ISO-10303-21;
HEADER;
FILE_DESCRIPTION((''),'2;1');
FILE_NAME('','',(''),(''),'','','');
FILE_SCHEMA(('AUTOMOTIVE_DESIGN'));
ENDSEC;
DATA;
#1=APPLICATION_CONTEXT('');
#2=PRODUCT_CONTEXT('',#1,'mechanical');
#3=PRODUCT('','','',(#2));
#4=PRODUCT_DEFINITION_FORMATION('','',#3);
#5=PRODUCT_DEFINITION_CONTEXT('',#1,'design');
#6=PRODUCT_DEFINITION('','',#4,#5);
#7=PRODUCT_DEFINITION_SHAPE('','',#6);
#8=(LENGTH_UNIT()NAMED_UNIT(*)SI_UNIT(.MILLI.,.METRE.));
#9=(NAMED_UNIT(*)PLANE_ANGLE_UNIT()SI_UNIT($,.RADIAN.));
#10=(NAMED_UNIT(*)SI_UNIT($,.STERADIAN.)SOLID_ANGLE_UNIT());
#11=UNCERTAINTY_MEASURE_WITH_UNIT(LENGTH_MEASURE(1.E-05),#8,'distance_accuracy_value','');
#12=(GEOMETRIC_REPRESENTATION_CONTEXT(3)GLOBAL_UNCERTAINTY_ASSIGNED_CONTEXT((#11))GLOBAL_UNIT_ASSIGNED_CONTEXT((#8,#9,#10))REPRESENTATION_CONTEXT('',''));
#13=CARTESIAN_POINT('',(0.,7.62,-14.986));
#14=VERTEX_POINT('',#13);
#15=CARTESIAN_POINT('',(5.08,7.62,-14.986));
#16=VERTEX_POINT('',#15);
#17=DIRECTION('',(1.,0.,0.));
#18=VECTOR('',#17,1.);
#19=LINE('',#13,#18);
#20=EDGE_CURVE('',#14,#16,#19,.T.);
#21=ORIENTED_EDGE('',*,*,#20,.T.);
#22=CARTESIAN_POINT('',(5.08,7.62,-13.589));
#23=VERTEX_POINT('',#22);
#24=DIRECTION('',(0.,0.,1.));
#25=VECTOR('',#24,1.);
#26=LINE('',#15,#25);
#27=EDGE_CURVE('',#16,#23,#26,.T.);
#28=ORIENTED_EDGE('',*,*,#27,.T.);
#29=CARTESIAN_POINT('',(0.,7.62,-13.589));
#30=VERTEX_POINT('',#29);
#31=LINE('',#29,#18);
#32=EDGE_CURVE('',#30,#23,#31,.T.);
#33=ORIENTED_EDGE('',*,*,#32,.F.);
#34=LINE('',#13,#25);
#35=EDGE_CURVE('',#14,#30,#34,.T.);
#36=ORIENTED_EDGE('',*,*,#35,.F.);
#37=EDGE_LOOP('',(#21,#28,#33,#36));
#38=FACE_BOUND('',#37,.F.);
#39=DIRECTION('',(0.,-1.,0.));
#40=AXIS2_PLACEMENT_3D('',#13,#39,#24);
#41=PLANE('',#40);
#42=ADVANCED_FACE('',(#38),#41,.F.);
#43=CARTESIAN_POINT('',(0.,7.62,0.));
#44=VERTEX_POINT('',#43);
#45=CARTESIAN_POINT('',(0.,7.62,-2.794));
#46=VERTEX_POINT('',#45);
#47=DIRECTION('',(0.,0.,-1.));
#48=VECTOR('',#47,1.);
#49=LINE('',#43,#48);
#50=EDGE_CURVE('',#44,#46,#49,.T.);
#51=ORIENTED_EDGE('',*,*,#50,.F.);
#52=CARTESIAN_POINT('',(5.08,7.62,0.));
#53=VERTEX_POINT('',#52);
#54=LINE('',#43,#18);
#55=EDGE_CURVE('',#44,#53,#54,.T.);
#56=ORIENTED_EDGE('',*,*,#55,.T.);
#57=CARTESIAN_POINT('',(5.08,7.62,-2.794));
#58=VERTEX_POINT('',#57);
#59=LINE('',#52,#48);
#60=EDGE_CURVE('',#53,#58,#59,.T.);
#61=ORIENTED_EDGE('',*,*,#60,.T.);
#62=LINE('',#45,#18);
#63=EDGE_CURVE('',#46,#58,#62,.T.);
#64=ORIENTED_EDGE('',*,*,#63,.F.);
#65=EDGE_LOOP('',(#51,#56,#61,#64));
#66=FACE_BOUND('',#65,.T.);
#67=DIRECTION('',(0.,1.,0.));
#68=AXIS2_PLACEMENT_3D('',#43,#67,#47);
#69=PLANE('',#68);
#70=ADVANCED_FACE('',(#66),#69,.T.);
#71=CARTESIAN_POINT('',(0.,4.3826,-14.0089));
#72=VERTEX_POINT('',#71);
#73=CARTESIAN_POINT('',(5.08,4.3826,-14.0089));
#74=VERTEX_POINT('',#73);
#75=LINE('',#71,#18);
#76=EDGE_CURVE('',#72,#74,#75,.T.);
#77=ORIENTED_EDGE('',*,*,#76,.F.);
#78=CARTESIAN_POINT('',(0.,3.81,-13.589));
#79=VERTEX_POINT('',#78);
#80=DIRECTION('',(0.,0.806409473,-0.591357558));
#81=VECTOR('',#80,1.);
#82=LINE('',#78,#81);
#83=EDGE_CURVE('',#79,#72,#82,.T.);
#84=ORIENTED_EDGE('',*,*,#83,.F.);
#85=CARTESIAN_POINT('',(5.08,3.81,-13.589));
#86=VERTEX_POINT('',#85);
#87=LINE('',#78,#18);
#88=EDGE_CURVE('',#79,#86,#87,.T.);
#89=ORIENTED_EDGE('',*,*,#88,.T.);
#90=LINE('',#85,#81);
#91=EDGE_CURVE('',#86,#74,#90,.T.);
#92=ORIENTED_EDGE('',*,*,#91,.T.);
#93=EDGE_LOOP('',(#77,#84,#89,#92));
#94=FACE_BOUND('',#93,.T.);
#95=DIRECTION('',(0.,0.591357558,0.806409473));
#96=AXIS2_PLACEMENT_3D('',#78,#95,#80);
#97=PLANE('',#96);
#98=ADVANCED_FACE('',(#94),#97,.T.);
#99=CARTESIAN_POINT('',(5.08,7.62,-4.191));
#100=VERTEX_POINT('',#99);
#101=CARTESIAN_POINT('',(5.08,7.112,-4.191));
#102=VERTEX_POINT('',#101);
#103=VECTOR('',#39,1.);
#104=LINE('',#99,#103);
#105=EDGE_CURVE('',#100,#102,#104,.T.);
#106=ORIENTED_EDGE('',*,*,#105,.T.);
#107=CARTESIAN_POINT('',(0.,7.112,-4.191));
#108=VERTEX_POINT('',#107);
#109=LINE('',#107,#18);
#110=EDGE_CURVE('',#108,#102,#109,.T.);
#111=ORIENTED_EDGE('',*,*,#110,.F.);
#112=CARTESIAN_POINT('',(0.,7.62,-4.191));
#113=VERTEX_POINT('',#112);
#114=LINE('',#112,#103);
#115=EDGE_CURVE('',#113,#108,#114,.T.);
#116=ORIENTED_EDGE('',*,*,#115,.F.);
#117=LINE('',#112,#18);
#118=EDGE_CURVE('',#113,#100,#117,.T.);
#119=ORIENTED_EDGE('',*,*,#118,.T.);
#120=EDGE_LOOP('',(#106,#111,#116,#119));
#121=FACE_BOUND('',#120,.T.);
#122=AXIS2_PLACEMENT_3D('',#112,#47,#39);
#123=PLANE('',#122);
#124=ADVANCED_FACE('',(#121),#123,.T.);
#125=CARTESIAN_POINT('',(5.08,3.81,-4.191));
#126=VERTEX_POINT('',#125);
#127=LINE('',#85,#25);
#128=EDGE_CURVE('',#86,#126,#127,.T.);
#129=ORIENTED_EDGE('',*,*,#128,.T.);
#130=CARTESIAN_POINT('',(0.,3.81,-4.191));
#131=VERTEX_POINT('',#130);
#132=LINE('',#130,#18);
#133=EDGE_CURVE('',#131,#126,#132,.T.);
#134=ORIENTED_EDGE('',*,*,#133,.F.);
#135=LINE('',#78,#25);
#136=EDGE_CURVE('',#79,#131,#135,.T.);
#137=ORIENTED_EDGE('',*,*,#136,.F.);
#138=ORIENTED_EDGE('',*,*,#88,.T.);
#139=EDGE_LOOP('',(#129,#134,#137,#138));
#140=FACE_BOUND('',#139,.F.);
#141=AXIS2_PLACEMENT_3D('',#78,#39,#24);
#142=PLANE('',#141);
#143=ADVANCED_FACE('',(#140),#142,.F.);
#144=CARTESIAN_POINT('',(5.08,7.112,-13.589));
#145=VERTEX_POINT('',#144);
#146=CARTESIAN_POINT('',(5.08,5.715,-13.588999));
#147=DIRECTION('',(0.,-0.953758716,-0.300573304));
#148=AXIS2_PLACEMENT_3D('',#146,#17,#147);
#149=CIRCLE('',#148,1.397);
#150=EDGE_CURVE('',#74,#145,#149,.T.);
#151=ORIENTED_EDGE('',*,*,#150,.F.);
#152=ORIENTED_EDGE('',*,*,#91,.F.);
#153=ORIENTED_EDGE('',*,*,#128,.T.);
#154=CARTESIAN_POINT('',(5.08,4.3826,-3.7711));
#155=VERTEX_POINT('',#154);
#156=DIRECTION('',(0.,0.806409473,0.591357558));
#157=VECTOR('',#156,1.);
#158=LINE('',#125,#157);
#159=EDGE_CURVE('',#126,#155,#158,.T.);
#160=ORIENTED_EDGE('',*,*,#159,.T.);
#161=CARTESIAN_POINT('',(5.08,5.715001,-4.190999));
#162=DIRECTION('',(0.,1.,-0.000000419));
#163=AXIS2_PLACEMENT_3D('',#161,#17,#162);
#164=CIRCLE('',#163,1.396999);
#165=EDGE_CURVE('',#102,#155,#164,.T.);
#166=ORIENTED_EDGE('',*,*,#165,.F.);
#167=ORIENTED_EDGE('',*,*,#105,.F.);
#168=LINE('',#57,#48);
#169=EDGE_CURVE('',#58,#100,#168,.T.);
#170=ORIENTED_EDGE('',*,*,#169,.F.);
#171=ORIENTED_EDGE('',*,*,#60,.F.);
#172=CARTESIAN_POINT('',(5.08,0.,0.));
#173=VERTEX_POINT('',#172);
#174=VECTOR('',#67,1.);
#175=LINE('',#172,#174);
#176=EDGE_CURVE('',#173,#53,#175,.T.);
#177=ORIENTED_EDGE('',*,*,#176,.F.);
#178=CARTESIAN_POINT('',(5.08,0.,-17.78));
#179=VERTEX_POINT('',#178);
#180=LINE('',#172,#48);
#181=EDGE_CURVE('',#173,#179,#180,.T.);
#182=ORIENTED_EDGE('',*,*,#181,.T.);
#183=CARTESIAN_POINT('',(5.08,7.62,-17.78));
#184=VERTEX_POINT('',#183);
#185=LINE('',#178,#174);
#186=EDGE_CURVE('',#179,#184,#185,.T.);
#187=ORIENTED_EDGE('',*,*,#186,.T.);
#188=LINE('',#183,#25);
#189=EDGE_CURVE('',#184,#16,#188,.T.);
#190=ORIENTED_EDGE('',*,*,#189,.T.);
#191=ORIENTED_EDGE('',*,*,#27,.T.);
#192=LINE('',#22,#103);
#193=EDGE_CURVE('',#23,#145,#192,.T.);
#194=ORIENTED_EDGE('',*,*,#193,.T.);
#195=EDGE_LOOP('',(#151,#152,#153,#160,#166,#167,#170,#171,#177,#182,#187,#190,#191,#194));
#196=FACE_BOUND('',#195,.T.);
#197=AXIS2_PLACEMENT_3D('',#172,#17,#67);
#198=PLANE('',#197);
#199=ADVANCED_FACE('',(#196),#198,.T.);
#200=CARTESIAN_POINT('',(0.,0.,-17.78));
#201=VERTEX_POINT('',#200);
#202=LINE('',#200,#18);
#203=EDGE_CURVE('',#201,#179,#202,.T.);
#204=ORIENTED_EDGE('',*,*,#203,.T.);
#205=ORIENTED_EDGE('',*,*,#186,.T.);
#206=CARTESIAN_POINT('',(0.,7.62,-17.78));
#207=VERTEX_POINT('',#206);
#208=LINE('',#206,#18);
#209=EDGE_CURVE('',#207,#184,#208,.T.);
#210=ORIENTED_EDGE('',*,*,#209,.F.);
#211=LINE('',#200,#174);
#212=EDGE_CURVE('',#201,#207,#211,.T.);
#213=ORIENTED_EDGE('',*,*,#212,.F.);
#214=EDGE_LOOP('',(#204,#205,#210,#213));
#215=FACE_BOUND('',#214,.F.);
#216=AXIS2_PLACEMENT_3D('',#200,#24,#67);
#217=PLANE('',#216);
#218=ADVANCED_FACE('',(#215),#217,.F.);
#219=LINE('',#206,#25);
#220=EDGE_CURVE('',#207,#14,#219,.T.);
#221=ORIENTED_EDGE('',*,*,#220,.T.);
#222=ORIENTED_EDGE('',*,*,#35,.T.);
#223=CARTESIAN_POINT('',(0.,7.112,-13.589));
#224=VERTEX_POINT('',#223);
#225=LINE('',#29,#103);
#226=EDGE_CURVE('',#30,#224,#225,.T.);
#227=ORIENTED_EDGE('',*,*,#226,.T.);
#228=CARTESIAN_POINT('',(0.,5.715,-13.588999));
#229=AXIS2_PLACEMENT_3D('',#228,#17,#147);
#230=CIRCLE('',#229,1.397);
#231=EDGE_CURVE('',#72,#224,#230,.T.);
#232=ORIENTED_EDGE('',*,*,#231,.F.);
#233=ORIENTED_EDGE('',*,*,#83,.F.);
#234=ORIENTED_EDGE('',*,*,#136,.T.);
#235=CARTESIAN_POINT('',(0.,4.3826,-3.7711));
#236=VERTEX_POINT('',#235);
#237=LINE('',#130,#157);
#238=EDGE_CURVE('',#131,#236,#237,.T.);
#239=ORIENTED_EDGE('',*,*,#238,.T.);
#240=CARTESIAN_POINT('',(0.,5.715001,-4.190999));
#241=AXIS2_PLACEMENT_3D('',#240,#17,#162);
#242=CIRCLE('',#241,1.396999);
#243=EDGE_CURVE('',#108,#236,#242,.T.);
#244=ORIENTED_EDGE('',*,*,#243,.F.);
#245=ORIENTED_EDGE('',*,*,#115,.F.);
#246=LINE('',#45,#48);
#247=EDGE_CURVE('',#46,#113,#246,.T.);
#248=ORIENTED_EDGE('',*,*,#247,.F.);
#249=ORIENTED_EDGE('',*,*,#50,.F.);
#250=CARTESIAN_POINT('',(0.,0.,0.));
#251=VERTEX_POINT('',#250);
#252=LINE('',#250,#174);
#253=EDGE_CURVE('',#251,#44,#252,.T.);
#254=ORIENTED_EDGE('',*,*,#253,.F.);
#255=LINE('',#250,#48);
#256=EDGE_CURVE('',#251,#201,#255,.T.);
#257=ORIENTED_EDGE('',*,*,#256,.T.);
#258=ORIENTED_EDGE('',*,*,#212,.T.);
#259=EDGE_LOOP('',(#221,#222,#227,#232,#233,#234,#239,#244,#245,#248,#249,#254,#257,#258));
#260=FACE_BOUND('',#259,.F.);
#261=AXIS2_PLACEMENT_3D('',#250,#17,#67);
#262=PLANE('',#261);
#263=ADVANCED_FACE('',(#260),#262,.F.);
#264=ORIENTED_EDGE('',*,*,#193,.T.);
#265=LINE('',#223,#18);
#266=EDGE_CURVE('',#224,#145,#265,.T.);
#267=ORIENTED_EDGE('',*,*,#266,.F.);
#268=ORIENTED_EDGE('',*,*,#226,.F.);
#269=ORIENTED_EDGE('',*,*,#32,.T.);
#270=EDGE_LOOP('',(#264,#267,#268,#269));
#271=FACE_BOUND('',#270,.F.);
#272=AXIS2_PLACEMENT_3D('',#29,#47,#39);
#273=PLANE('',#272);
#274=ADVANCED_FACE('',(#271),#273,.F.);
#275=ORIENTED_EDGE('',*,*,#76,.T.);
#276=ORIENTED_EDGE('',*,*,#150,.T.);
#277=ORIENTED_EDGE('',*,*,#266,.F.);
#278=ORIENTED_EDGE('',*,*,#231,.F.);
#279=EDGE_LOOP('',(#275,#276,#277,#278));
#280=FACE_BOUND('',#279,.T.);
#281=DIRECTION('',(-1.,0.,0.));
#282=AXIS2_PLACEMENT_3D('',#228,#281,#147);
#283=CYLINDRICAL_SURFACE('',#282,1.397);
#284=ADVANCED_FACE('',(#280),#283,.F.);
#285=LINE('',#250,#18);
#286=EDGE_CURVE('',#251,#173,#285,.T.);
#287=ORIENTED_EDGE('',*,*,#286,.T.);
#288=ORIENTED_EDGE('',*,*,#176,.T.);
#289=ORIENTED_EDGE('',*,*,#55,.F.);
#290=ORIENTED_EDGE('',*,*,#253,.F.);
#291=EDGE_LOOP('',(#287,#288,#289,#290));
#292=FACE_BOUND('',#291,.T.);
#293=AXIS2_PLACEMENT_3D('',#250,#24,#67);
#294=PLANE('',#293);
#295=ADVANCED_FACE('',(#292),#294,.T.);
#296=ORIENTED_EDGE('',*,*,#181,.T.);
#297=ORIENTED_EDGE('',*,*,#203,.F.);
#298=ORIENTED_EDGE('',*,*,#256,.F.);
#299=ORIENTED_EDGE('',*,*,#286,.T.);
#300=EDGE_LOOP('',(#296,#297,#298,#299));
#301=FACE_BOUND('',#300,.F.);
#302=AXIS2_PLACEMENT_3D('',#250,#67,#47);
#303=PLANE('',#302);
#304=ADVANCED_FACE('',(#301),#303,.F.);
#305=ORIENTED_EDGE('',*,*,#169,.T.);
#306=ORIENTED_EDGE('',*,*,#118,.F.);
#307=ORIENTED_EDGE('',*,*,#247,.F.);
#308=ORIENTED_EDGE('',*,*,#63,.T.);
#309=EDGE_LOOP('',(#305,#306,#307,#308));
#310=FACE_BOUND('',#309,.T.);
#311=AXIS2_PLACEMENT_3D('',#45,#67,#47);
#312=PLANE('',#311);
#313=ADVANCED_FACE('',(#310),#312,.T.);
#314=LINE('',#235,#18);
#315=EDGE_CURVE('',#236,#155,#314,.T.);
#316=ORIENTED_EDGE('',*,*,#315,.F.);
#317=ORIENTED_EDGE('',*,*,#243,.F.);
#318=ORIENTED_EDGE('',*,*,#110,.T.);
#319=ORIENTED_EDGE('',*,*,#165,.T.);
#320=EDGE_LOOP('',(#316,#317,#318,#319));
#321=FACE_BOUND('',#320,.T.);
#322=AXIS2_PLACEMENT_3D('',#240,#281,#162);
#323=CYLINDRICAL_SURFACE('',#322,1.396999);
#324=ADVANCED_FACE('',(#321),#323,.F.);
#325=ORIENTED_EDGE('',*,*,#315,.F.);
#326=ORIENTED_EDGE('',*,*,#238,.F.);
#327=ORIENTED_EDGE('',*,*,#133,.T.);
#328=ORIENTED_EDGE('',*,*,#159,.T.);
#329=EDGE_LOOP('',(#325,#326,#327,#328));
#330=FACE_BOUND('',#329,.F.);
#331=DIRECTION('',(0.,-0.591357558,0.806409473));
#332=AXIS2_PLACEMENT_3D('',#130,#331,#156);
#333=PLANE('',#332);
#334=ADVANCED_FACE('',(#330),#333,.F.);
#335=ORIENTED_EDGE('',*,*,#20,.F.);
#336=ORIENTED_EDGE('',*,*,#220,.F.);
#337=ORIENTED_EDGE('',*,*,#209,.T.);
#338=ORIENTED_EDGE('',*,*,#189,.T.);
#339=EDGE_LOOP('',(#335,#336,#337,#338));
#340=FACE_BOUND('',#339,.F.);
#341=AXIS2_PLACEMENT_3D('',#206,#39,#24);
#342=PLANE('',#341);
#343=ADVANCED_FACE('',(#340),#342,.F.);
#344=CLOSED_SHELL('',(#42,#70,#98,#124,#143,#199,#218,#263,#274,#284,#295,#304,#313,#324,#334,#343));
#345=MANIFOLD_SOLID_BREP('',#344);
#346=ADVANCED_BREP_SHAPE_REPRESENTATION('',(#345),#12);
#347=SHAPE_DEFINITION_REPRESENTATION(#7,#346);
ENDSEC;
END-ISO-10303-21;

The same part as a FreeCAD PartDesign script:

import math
import FreeCAD as App
import Part
import Sketcher

V = App.Vector
Q = App.Units.Quantity

doc = App.newDocument("Part")
body = doc.addObject("PartDesign::Body", "Body")

# Sketch on YZ plane
sketch1 = body.newObject("Sketcher::SketchObject", "Sketch")
sketch1.AttachmentSupport = (doc.getObject("YZ_Plane"), [""])
sketch1.MapMode = "FlatFace"
sketch1.addGeometry([
    Part.LineSegment(V(7.62, 0, 0), V(0, 0, 0)),  # 0
    Part.LineSegment(V(0, 0, 0), V(0, -17.78, 0)),  # 1
    Part.LineSegment(V(0, -17.78, 0), V(7.62, -17.78, 0)),  # 2
    Part.LineSegment(V(7.62, -17.78, 0), V(7.62, -13.589, 0)),  # 3
    Part.LineSegment(V(7.62, -13.589, 0), V(7.112, -13.589, 0)),  # 4
    Part.ArcOfCircle(Part.Circle(V(5.715, -13.589, 0), V(0, 0, 1), 1.396999), math.radians(-162.507984), math.radians(0)),  # 5
    Part.LineSegment(V(4.3826, -14.0089, 0), V(3.81, -13.589, 0)),  # 6
    Part.LineSegment(V(3.81, -13.589, 0), V(3.81, -4.191, 0)),  # 7
    Part.LineSegment(V(3.81, -4.191, 0), V(4.3826, -3.7711, 0)),  # 8
    Part.ArcOfCircle(Part.Circle(V(5.715, -4.191, 0), V(0, 0, 1), 1.397), math.radians(0), math.radians(162.507984)),  # 9
    Part.LineSegment(V(7.112, -4.191, 0), V(7.62, -4.191, 0)),  # 10
    Part.LineSegment(V(7.62, -4.191, 0), V(7.62, 0, 0)),  # 11
], False)
sketch1.addConstraint([
    Sketcher.Constraint("Coincident", 0, 2, 1, 1),
    Sketcher.Constraint("Coincident", 1, 2, 2, 1),
    Sketcher.Constraint("Coincident", 2, 2, 3, 1),
    Sketcher.Constraint("Coincident", 3, 2, 4, 1),
    Sketcher.Constraint("Coincident", 4, 2, 5, 2),
    Sketcher.Constraint("Coincident", 5, 1, 6, 1),
    Sketcher.Constraint("Coincident", 6, 2, 7, 1),
    Sketcher.Constraint("Coincident", 7, 2, 8, 1),
    Sketcher.Constraint("Coincident", 8, 2, 9, 2),
    Sketcher.Constraint("Coincident", 9, 1, 10, 1),
    Sketcher.Constraint("Coincident", 10, 2, 11, 1),
    Sketcher.Constraint("Coincident", 11, 2, 0, 1),
    Sketcher.Constraint("Horizontal", 0),
    Sketcher.Constraint("Vertical", 1),
    Sketcher.Constraint("Horizontal", 2),
    Sketcher.Constraint("Vertical", 3),
    Sketcher.Constraint("Horizontal", 4),
    Sketcher.Constraint("Vertical", 7),
    Sketcher.Constraint("Horizontal", 10),
    Sketcher.Constraint("Vertical", 11),
    Sketcher.Constraint("Coincident", 0, 2, -1, 1),
    Sketcher.Constraint("Equal", 5, 9),
    Sketcher.Constraint("Horizontal", 5, 3, 3, 2),
    Sketcher.Constraint("Horizontal", 4, 2, 6, 2),
    Sketcher.Constraint("Horizontal", 9, 3, 7, 2),
    Sketcher.Constraint("Horizontal", 7, 2, 9, 1),
    Sketcher.Constraint("Vertical", 5, 3, 9, 3),
    Sketcher.Constraint("Vertical", 5, 1, 8, 2),
    Sketcher.Constraint("Vertical", 3, 2, 10, 2),
    Sketcher.Constraint("Equal", 3, 11),
    Sketcher.Constraint("DistanceX", 0, 2, 0, 1, Q("0.3 in")),
    Sketcher.Constraint("DistanceY", 1, 2, 1, 1, Q("0.7 in")),
    Sketcher.Constraint("Radius", 5, Q("0.055 in")),
    Sketcher.Constraint("DistanceX", 4, 2, 4, 1, Q("0.02 in")),
    Sketcher.Constraint("DistanceY", 7, 1, 7, 2, Q("0.37 in")),
    Sketcher.Constraint("DistanceX", -1, 1, 6, 2, Q("0.15 in")),
    Sketcher.Constraint("Distance", 6, 0.71),
])
pad1 = body.newObject("PartDesign::Pad", "Pad")
pad1.Profile = sketch1
pad1.Length = Q("0.2 in")

doc.recompute()
